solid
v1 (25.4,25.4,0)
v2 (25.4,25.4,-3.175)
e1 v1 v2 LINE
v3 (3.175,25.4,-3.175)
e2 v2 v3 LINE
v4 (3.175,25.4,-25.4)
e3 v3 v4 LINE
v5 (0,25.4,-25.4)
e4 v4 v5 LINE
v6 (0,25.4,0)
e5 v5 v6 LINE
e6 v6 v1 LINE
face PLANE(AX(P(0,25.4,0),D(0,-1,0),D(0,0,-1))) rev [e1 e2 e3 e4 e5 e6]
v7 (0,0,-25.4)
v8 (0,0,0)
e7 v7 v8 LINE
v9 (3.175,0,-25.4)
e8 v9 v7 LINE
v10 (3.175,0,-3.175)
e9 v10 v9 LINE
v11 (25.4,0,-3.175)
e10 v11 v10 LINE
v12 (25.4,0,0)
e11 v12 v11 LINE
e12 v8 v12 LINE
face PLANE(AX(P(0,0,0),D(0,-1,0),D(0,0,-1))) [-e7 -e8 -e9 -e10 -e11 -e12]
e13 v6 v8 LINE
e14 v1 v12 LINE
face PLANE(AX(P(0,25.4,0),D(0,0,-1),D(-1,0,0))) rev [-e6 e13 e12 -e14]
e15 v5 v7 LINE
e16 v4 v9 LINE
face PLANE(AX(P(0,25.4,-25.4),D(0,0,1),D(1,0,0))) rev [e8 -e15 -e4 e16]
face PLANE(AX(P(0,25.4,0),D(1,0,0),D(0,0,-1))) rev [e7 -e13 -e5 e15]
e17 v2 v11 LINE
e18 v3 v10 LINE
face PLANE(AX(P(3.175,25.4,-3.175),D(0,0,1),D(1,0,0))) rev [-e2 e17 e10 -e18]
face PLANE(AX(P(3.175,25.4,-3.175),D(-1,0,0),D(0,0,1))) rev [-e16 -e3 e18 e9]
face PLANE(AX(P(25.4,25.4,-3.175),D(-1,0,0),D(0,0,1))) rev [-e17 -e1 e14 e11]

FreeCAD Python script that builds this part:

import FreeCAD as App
import Part
import Sketcher

V = App.Vector
Q = App.Units.Quantity

doc = App.newDocument("Part")
params = doc.addObject("Spreadsheet::Sheet", "Params")
for row, (alias, value) in enumerate([
    ("sketch1_width", "1 in"),
    ("sketch1_width2", "0.875 in"),
    ("pad1_length", "1 in"),
], start=1):
    params.set(f"A{row}", alias)
    params.set(f"B{row}", "=" + value)
    params.setAlias(f"B{row}", alias)

body = doc.addObject("PartDesign::Body", "Body")

# Sketch on XZ plane
sketch1 = body.newObject("Sketcher::SketchObject", "Sketch")
sketch1.AttachmentSupport = (doc.getObject("XZ_Plane"), [""])
sketch1.MapMode = "FlatFace"
sketch1.addGeometry(Part.LineSegment(V(0, -25.4, 0), V(0, 0, 0)), False)
sketch1.addGeometry(Part.LineSegment(V(0, 0, 0), V(25.4, 0, 0)), False)
sketch1.addGeometry(Part.LineSegment(V(25.4, 0, 0), V(25.4, -3.2, 0)), False)
sketch1.addGeometry(Part.LineSegment(V(25.4, -3.2, 0), V(3.2, -3.2, 0)), False)
sketch1.addGeometry(Part.LineSegment(V(3.2, -3.2, 0), V(3.2, -25.4, 0)), False)
sketch1.addGeometry(Part.LineSegment(V(3.2, -25.4, 0), V(0, -25.4, 0)), False)
sketch1.addConstraint(Sketcher.Constraint("Coincident", 0, 2, 1, 1))
sketch1.addConstraint(Sketcher.Constraint("Coincident", 1, 2, 2, 1))
sketch1.addConstraint(Sketcher.Constraint("Coincident", 2, 2, 3, 1))
sketch1.addConstraint(Sketcher.Constraint("Coincident", 3, 2, 4, 1))
sketch1.addConstraint(Sketcher.Constraint("Coincident", 4, 2, 5, 1))
sketch1.addConstraint(Sketcher.Constraint("Coincident", 5, 2, 0, 1))
sketch1.addConstraint(Sketcher.Constraint("Vertical", 0))
sketch1.addConstraint(Sketcher.Constraint("Horizontal", 1))
sketch1.addConstraint(Sketcher.Constraint("Vertical", 2))
sketch1.addConstraint(Sketcher.Constraint("Horizontal", 3))
sketch1.addConstraint(Sketcher.Constraint("Vertical", 4))
sketch1.addConstraint(Sketcher.Constraint("Horizontal", 5))
sketch1.addConstraint(Sketcher.Constraint("Coincident", 0, 2, -1, 1))
sketch1.addConstraint(Sketcher.Constraint("Equal", 1, 0))
sketch1.addConstraint(Sketcher.Constraint("Equal", 5, 2))
sketch1.addConstraint(Sketcher.Constraint("DistanceX", 1, 1, 1, 2, Q("1 in")))
sketch1.addConstraint(Sketcher.Constraint("DistanceX", 3, 2, 3, 1, Q("0.875 in")))
sketch1.setExpression("Constraints[15]", "Params.sketch1_width")
sketch1.setExpression("Constraints[16]", "Params.sketch1_width2")
pad1 = body.newObject("PartDesign::Pad", "Pad")
pad1.Profile = sketch1
pad1.setExpression("Length", "Params.pad1_length")
pad1.Reversed = True

doc.recompute()
